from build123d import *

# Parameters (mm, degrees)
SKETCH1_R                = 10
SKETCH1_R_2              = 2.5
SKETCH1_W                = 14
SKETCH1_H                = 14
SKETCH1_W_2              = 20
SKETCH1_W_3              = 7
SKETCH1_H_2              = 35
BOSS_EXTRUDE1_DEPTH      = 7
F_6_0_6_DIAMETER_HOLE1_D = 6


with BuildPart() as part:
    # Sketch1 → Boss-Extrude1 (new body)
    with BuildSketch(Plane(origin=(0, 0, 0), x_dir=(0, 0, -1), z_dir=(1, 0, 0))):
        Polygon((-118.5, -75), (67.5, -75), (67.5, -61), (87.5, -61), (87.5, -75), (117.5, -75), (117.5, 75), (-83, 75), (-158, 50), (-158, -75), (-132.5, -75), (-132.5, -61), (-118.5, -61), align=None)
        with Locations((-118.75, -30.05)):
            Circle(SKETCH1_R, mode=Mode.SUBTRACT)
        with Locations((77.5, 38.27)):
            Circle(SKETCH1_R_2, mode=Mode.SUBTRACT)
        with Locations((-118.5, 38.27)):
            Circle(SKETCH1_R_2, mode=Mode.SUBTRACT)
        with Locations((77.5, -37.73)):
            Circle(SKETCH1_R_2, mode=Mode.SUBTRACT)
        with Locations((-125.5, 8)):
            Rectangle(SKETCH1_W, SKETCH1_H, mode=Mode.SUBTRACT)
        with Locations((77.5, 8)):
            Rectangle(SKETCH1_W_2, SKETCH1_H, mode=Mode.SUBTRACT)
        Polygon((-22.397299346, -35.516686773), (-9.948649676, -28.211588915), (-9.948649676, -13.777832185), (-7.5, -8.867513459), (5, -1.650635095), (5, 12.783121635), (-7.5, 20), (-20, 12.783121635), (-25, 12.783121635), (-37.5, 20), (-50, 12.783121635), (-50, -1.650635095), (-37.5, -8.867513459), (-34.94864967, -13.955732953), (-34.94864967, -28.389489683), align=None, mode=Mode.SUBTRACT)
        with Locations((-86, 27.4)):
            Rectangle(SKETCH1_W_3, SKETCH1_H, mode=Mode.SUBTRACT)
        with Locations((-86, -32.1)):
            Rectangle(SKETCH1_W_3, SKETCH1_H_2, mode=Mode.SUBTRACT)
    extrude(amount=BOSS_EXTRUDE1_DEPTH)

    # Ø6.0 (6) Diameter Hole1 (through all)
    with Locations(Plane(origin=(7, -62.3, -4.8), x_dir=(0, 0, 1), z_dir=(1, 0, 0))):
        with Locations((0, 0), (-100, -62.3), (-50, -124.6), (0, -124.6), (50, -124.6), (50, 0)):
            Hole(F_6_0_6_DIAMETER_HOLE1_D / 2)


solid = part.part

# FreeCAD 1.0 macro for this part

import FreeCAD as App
import Part
import Sketcher
from FreeCAD import Vector
Q = App.Units.Quantity


def add_polygon(sketch, points):
    """Adds a closed chain of lines whose ends are joined by coincident constraints."""
    first, n = sketch.GeometryCount, len(points)
    for a, b in zip(points, points[1:] + points[:1]):
        sketch.addGeometry(Part.LineSegment(App.Vector(*a, 0), App.Vector(*b, 0)), False)
    for i in range(n):
        sketch.addConstraint(Sketcher.Constraint("Coincident", first + i, 2, first + (i + 1) % n, 1))

doc = App.newDocument("Part")
body = doc.addObject("PartDesign::Body", "Body")

# Sketch on YZ plane
sketch1 = body.newObject("Sketcher::SketchObject", "Sketch")
sketch1.AttachmentSupport = (doc.getObject("YZ_Plane"), [""])
sketch1.MapMode = "FlatFace"
add_polygon(sketch1, [(-75, 118.5), (-75, -67.5), (-61, -67.5), (-61, -87.5), (-75, -87.5), (-75, -117.5), (75, -117.5), (75, 83), (50, 158), (-75, 158), (-75, 132.5), (-61, 132.5), (-61, 118.5)])  # lines 0-12
sketch1.addGeometry(Part.Circle(Vector(-30.1, 118.8, 0), Vector(0, 0, 1), 10), False)  # 13
add_polygon(sketch1, [(-49.6, 82.5), (-49.6, 89.5), (-14.6, 89.5), (-14.6, 82.5)])  # lines 14-17
sketch1.addGeometry(Part.Circle(Vector(-37.7, -77.5, 0), Vector(0, 0, 1), 2.5), False)  # 18
add_polygon(sketch1, [(-28.2, 9.9), (-35.5, 22.4), (-28.4, 34.9), (-14, 34.9), (-8.9, 37.5), (-1.7, 50), (12.8, 50), (20, 37.5), (12.8, 25), (12.8, 20), (20, 7.5), (12.8, -5), (-1.7, -5), (-8.9, 7.5), (-13.8, 9.9)])  # lines 19-33
add_polygon(sketch1, [(1, 118.5), (1, 132.5), (15, 132.5), (15, 118.5)])  # lines 34-37
add_polygon(sketch1, [(20.4, 82.5), (20.4, 89.5), (34.4, 89.5), (34.4, 82.5)])  # lines 38-41
sketch1.addGeometry(Part.Circle(Vector(38.3, 118.5, 0), Vector(0, 0, 1), 2.5), False)  # 42
add_polygon(sketch1, [(1, -87.5), (1, -67.5), (15, -67.5), (15, -87.5)])  # lines 43-46
sketch1.addGeometry(Part.Circle(Vector(38.3, -77.5, 0), Vector(0, 0, 1), 2.5), False)  # 47
sketch1.addConstraint([
    Sketcher.Constraint("Vertical", 0),
    Sketcher.Constraint("Horizontal", 1),
    Sketcher.Constraint("Vertical", 2),
    Sketcher.Constraint("Horizontal", 3),
    Sketcher.Constraint("Vertical", 4),
    Sketcher.Constraint("Horizontal", 5),
    Sketcher.Constraint("Vertical", 6),
    Sketcher.Constraint("Horizontal", 8),
    Sketcher.Constraint("Vertical", 9),
    Sketcher.Constraint("Horizontal", 10),
    Sketcher.Constraint("Vertical", 11),
    Sketcher.Constraint("Horizontal", 12),
    Sketcher.Constraint("Vertical", 14),
    Sketcher.Constraint("Horizontal", 15),
    Sketcher.Constraint("Vertical", 16),
    Sketcher.Constraint("Horizontal", 17),
    Sketcher.Constraint("Horizontal", 21),
    Sketcher.Constraint("Horizontal", 24),
    Sketcher.Constraint("Vertical", 27),
    Sketcher.Constraint("Horizontal", 30),
    Sketcher.Constraint("Horizontal", 33),
    Sketcher.Constraint("Vertical", 34),
    Sketcher.Constraint("Horizontal", 35),
    Sketcher.Constraint("Vertical", 36),
    Sketcher.Constraint("Horizontal", 37),
    Sketcher.Constraint("Vertical", 38),
    Sketcher.Constraint("Horizontal", 39),
    Sketcher.Constraint("Vertical", 40),
    Sketcher.Constraint("Horizontal", 41),
    Sketcher.Constraint("Vertical", 43),
    Sketcher.Constraint("Horizontal", 44),
    Sketcher.Constraint("Vertical", 45),
    Sketcher.Constraint("Horizontal", 46),
    Sketcher.Constraint("Equal", 18, 42),
    Sketcher.Constraint("Equal", 42, 47),
    Sketcher.Constraint("Parallel", 23, 26),
    Sketcher.Constraint("Parallel", 25, 28),
    Sketcher.Constraint("Parallel", 26, 29),
    Sketcher.Constraint("Parallel", 28, 31),
    Sketcher.Constraint("Horizontal", 18, 3, 47, 3),
    Sketcher.Constraint("Horizontal", 42, 3, 11, 2),
    Sketcher.Constraint("Horizontal", 22, 2, 25, 2),
    Sketcher.Constraint("Horizontal", 28, 2, 31, 2),
    Sketcher.Constraint("Horizontal", 10, 2, 34, 2),
    Sketcher.Constraint("Horizontal", 12, 2, 36, 2),
    Sketcher.Constraint("Horizontal", 15, 2, 38, 2),
    Sketcher.Constraint("Horizontal", 17, 2, 40, 2),
    Sketcher.Constraint("Horizontal", 1, 2, 43, 2),
    Sketcher.Constraint("Horizontal", 3, 2, 45, 2),
    Sketcher.Constraint("Vertical", 42, 3, 47, 3),
    Sketcher.Constraint("Vertical", 0, 2, 3, 2),
    Sketcher.Constraint("Vertical", 4, 2, 8, 2),
    Sketcher.Constraint("Vertical", 2, 2, 10, 2),
    Sketcher.Constraint("Vertical", 24, 2, 26, 2),
    Sketcher.Constraint("Vertical", 25, 2, 28, 2),
    Sketcher.Constraint("Vertical", 27, 2, 29, 2),
    Sketcher.Constraint("Vertical", 23, 2, 30, 2),
    Sketcher.Constraint("Vertical", 22, 2, 31, 2),
    Sketcher.Constraint("Vertical", 37, 2, 43, 2),
    Sketcher.Constraint("Vertical", 36, 2, 44, 2),
    Sketcher.Constraint("Equal", 21, 24),
    Sketcher.Constraint("Equal", 30, 33),
    Sketcher.Constraint("Equal", 12, 35),
    Sketcher.Constraint("Equal", 37, 39),
    Sketcher.Constraint("Equal", 46, 11),
    Sketcher.Constraint("Equal", 19, 20),
    Sketcher.Constraint("Equal", 20, 23),
    Sketcher.Constraint("Diameter", 13, Q("20 mm")),
    Sketcher.Constraint("Diameter", 18, Q("5 mm")),
    Sketcher.Constraint("DistanceX", 1, 1, 1, 2, Q("14 mm")),
    Sketcher.Constraint("DistanceX", 5, 1, 5, 2, Q("150 mm")),
    Sketcher.Constraint("DistanceX", 8, 2, 8, 1, Q("125 mm")),
    Sketcher.Constraint("DistanceX", 15, 1, 15, 2, Q("35 mm")),
    Sketcher.Constraint("DistanceY", 0, 2, 0, 1, Q("186 mm")),
    Sketcher.Constraint("DistanceY", 2, 2, 2, 1, Q("20 mm")),
    Sketcher.Constraint("DistanceY", 4, 2, 4, 1, Q("30 mm")),
    Sketcher.Constraint("DistanceY", 14, 1, 14, 2, Q("7 mm")),
    Sketcher.Constraint("DistanceY", 27, 2, 27, 1, Q("5 mm")),
    Sketcher.Constraint("Angle", 23, Q("60 deg")),
    Sketcher.Constraint("DistanceY", 6, 1, 6, 2, Q("200.5 mm")),
    Sketcher.Constraint("DistanceY", 9, 2, 9, 1, Q("25.5 mm")),
    Sketcher.Constraint("DistanceX", 0, 2, -1, 1, Q("75 mm")),
    Sketcher.Constraint("DistanceY", -1, 1, 6, 2, Q("83 mm")),
    Sketcher.Constraint("DistanceY", -1, 1, 23, 2, Q("50 mm")),
    Sketcher.Constraint("DistanceX", -1, 1, 25, 2, Q("20 mm")),
    Sketcher.Constraint("DistanceY", -1, 1, 26, 2, Q("25 mm")),
    Sketcher.Constraint("DistanceX", -1, 1, 34, 2, Q("1 mm")),
    Sketcher.Constraint("DistanceX", 18, 3, 42, 3, Q("76 mm")),
    Sketcher.Constraint("DistanceY", 18, 3, 42, 3, Q("196 mm")),
    Sketcher.Constraint("DistanceY", 14, 2, 11, 2, Q("29 mm")),
    Sketcher.Constraint("DistanceY", 32, 2, 21, 2, Q("25 mm")),
    Sketcher.Constraint("DistanceX", 15, 2, 38, 2, Q("35 mm")),
    Sketcher.Constraint("DistanceX", 14, 2, -1, 1, Q("49.6 mm")),
    Sketcher.Constraint("DistanceX", 13, 3, -1, 1, Q("30.05 mm")),
    Sketcher.Constraint("DistanceY", -1, 1, 13, 3, Q("118.75 mm")),
    Sketcher.Constraint("DistanceX", 18, 3, -1, 1, Q("37.73 mm")),
    Sketcher.Constraint("DistanceY", -1, 1, 19, 2, Q("22.397299 mm")),
    Sketcher.Constraint("DistanceX", 21, 2, 32, 2, Q("0.177901 mm")),
    Sketcher.Constraint("DistanceX", 21, 1, 21, 2, Q("14.433757 mm")),
    Sketcher.Constraint("DistanceX", 20, 2, -1, 1, Q("28.38949 mm")),
])
pad1 = body.newObject("PartDesign::Pad", "Pad")
pad1.Profile = sketch1
pad1.Length = 7

# Sketch on YZ plane
sketch2 = body.newObject("Sketcher::SketchObject", "Sketch001")
sketch2.AttachmentSupport = (doc.getObject("YZ_Plane"), [""])
sketch2.MapMode = "FlatFace"
sketch2.AttachmentOffset = App.Placement(Vector(0, 0, 7), App.Rotation())
sketch2.addGeometry([
    Part.Circle(Vector(-62.3, -4.8, 0), Vector(0, 0, 1), 3),  # 0
    Part.Circle(Vector(0, -104.8, 0), Vector(0, 0, 1), 3),  # 1
    Part.Circle(Vector(62.3, -54.8, 0), Vector(0, 0, 1), 3),  # 2
    Part.Circle(Vector(62.3, -4.8, 0), Vector(0, 0, 1), 3),  # 3
    Part.Circle(Vector(62.3, 45.2, 0), Vector(0, 0, 1), 3),  # 4
    Part.Circle(Vector(-62.3, 45.2, 0), Vector(0, 0, 1), 3),  # 5
], False)
sketch2.addConstraint([
    Sketcher.Constraint("Equal", 0, 1),
    Sketcher.Constraint("Equal", 1, 2),
    Sketcher.Constraint("Equal", 2, 3),
    Sketcher.Constraint("Equal", 3, 4),
    Sketcher.Constraint("Equal", 4, 5),
    Sketcher.Constraint("Symmetric", 0, 3, 3, 3, -2),
    Sketcher.Constraint("Symmetric", 4, 3, 5, 3, -2),
    Sketcher.Constraint("PointOnObject", 1, 3, -2),
    Sketcher.Constraint("Vertical", 2, 3, 3, 3),
    Sketcher.Constraint("Vertical", 3, 3, 4, 3),
    Sketcher.Constraint("Diameter", 0, Q("6 mm")),
    Sketcher.Constraint("DistanceY", 1, 3, 0, 3, Q("100 mm")),
    Sketcher.Constraint("DistanceY", 1, 3, 2, 3, Q("50 mm")),
    Sketcher.Constraint("DistanceY", 3, 3, 4, 3, Q("50 mm")),
    Sketcher.Constraint("DistanceX", 0, 3, -1, 1, Q("62.3 mm")),
    Sketcher.Constraint("DistanceY", 0, 3, -1, 1, Q("4.8 mm")),
])
doc.recompute()
hole = body.newObject("PartDesign::Hole", "Hole")
hole.Profile = sketch2
hole.ThreadType = "None"
hole.Diameter = 6
hole.DepthType = "ThroughAll"

doc.recompute()
